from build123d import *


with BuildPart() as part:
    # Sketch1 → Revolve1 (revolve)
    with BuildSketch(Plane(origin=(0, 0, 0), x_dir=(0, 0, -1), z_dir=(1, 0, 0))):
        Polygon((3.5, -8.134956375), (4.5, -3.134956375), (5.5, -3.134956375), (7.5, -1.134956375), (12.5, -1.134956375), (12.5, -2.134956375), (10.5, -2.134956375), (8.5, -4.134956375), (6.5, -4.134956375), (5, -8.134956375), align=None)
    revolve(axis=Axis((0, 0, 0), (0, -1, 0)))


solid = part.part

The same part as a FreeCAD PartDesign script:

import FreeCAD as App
import Part
import Sketcher
from FreeCAD import Vector
Q = App.Units.Quantity

doc = App.newDocument("Part")
params = doc.addObject("Spreadsheet::Sheet", "Params")
for row, (alias, value) in enumerate([
    ("sketch1_width", "1 mm"),
    ("sketch1_height", "2 mm"),
    ("sketch1_height2", "5 mm"),
    ("sketch1_height3", "1.5 mm"),
    ("revolution_angle", "360 deg"),
], start=1):
    params.set(f"A{row}", alias)
    params.set(f"B{row}", "=" + value)
    params.setAlias(f"B{row}", alias)

body = doc.addObject("PartDesign::Body", "Body")

# Sketch on YZ plane
sketch1 = body.newObject("Sketcher::SketchObject", "Sketch")
sketch1.AttachmentSupport = (doc.getObject("YZ_Plane"), [""])
sketch1.MapMode = "FlatFace"
sketch1.addGeometry(Part.LineSegment(Vector(-3.1, -4.5, 0), Vector(-8.1, -3.5, 0)), False)
sketch1.addGeometry(Part.LineSegment(Vector(-8.1, -3.5, 0), Vector(-8.1, -5, 0)), False)
sketch1.addGeometry(Part.LineSegment(Vector(-8.1, -5, 0), Vector(-4.1, -6.5, 0)), False)
sketch1.addGeometry(Part.LineSegment(Vector(-4.1, -6.5, 0), Vector(-4.1, -8.5, 0)), False)
sketch1.addGeometry(Part.LineSegment(Vector(-4.1, -8.5, 0), Vector(-2.1, -10.5, 0)), False)
sketch1.addGeometry(Part.LineSegment(Vector(-2.1, -10.5, 0), Vector(-2.1, -12.5, 0)), False)
sketch1.addGeometry(Part.LineSegment(Vector(-2.1, -12.5, 0), Vector(-1.1, -12.5, 0)), False)
sketch1.addGeometry(Part.LineSegment(Vector(-1.1, -12.5, 0), Vector(-1.1, -7.5, 0)), False)
sketch1.addGeometry(Part.LineSegment(Vector(-1.1, -7.5, 0), Vector(-3.1, -5.5, 0)), False)
sketch1.addGeometry(Part.LineSegment(Vector(-3.1, -5.5, 0), Vector(-3.1, -4.5, 0)), False)
sketch1.addConstraint(Sketcher.Constraint("Coincident", 0, 2, 1, 1))
sketch1.addConstraint(Sketcher.Constraint("Coincident", 1, 2, 2, 1))
sketch1.addConstraint(Sketcher.Constraint("Coincident", 2, 2, 3, 1))
sketch1.addConstraint(Sketcher.Constraint("Coincident", 3, 2, 4, 1))
sketch1.addConstraint(Sketcher.Constraint("Coincident", 4, 2, 5, 1))
sketch1.addConstraint(Sketcher.Constraint("Coincident", 5, 2, 6, 1))
sketch1.addConstraint(Sketcher.Constraint("Coincident", 6, 2, 7, 1))
sketch1.addConstraint(Sketcher.Constraint("Coincident", 7, 2, 8, 1))
sketch1.addConstraint(Sketcher.Constraint("Coincident", 8, 2, 9, 1))
sketch1.addConstraint(Sketcher.Constraint("Coincident", 9, 2, 0, 1))
sketch1.addConstraint(Sketcher.Constraint("Vertical", 1))
sketch1.addConstraint(Sketcher.Constraint("Vertical", 3))
sketch1.addConstraint(Sketcher.Constraint("Vertical", 5))
sketch1.addConstraint(Sketcher.Constraint("Horizontal", 6))
sketch1.addConstraint(Sketcher.Constraint("Vertical", 7))
sketch1.addConstraint(Sketcher.Constraint("Vertical", 9))
sketch1.addConstraint(Sketcher.Constraint("Parallel", 4, 8))
sketch1.addConstraint(Sketcher.Constraint("Equal", 3, 5))
sketch1.addConstraint(Sketcher.Constraint("Equal", 6, 9))
sketch1.addConstraint(Sketcher.Constraint("Equal", 4, 8))
sketch1.addConstraint(Sketcher.Constraint("DistanceX", 6, 1, 6, 2, 1.0))
sketch1.addConstraint(Sketcher.Constraint("DistanceY", 3, 2, 3, 1, 2.0))
sketch1.addConstraint(Sketcher.Constraint("DistanceY", 7, 1, 7, 2, 5.0))
sketch1.addConstraint(Sketcher.Constraint("Angle", 4, Q("-45 deg")))
sketch1.addConstraint(Sketcher.Constraint("DistanceY", 1, 2, 1, 1, 1.5))
sketch1.addConstraint(Sketcher.Constraint("DistanceY", 1, 2, -1, 1, 5.0))
sketch1.addConstraint(Sketcher.Constraint("DistanceX", 1, 2, 2, 2, 4.0))
sketch1.addConstraint(Sketcher.Constraint("DistanceY", 2, 2, 0, 2, 3.0))
sketch1.addConstraint(Sketcher.Constraint("DistanceX", 3, 2, 4, 2, 2.0))
sketch1.addConstraint(Sketcher.Constraint("DistanceX", 0, 2, -1, 1, 8.134956))
sketch1.setExpression("Constraints[20]", "Params.sketch1_width")
sketch1.setExpression("Constraints[21]", "Params.sketch1_height")
sketch1.setExpression("Constraints[22]", "Params.sketch1_height2")
sketch1.setExpression("Constraints[24]", "Params.sketch1_height3")
revolution = body.newObject("PartDesign::Revolution", "Revolution")
revolution.Profile = sketch1
revolution.ReferenceAxis = (sketch1, ["H_Axis"])
revolution.setExpression("Angle", "Params.revolution_angle")

doc.recompute()
